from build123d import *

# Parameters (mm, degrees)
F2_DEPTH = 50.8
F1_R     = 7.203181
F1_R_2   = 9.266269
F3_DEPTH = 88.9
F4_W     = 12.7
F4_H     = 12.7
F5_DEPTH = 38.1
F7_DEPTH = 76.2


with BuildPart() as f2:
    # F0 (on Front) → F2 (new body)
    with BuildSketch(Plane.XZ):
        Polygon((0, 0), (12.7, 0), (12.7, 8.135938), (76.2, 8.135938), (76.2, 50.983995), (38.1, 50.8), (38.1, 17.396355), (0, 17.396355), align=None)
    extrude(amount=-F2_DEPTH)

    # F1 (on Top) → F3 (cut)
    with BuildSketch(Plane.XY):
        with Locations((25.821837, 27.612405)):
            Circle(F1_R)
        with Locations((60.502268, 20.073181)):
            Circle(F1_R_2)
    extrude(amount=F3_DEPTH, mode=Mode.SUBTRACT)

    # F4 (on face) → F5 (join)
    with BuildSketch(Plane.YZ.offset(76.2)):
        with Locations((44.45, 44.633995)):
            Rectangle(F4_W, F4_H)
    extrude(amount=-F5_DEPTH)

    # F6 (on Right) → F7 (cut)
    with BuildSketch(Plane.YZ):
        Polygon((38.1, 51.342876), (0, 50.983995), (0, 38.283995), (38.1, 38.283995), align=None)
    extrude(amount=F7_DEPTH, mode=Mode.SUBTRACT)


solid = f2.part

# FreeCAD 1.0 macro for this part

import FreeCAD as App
import Part
import Sketcher

V = App.Vector
Q = App.Units.Quantity

doc = App.newDocument("Part")
body = doc.addObject("PartDesign::Body", "Body")

# Sketch on XZ plane
sketch1 = body.newObject("Sketcher::SketchObject", "Sketch")
sketch1.AttachmentSupport = (doc.getObject("XZ_Plane"), [""])
sketch1.MapMode = "FlatFace"
sketch1.addGeometry([
    Part.LineSegment(V(0, 0, 0), V(13, 0, 0)),  # 0
    Part.LineSegment(V(13, 0, 0), V(13, 8, 0)),  # 1
    Part.LineSegment(V(13, 8, 0), V(76, 8, 0)),  # 2
    Part.LineSegment(V(76, 8, 0), V(76, 51, 0)),  # 3
    Part.LineSegment(V(76, 51, 0), V(38, 51, 0)),  # 4
    Part.LineSegment(V(38, 51, 0), V(38, 17, 0)),  # 5
    Part.LineSegment(V(38, 17, 0), V(0, 17, 0)),  # 6
    Part.LineSegment(V(0, 17, 0), V(0, 0, 0)),  # 7
], False)
sketch1.addConstraint([
    Sketcher.Constraint("Coincident", 0, 2, 1, 1),
    Sketcher.Constraint("Coincident", 1, 2, 2, 1),
    Sketcher.Constraint("Coincident", 2, 2, 3, 1),
    Sketcher.Constraint("Coincident", 3, 2, 4, 1),
    Sketcher.Constraint("Coincident", 4, 2, 5, 1),
    Sketcher.Constraint("Coincident", 5, 2, 6, 1),
    Sketcher.Constraint("Coincident", 6, 2, 7, 1),
    Sketcher.Constraint("Coincident", 7, 2, 0, 1),
    Sketcher.Constraint("Horizontal", 0),
    Sketcher.Constraint("Vertical", 1),
    Sketcher.Constraint("Horizontal", 2),
    Sketcher.Constraint("Vertical", 3),
    Sketcher.Constraint("Vertical", 5),
    Sketcher.Constraint("Horizontal", 6),
    Sketcher.Constraint("Vertical", 7),
    Sketcher.Constraint("Coincident", 7, 2, -1, 1),
    Sketcher.Constraint("DistanceX", 0, 1, 0, 2, Q("0.5 in")),
    Sketcher.Constraint("DistanceX", 2, 1, 2, 2, Q("2.5 in")),
    Sketcher.Constraint("DistanceX", 6, 2, 6, 1, Q("1.5 in")),
    Sketcher.Constraint("DistanceY", -1, 1, 4, 2, Q("2 in")),
    Sketcher.Constraint("DistanceY", 1, 1, 1, 2, 8.135938),
    Sketcher.Constraint("DistanceY", 3, 1, 3, 2, 42.848057),
    Sketcher.Constraint("DistanceY", 5, 2, 5, 1, 33.403645),
])
pad1 = body.newObject("PartDesign::Pad", "Pad")
pad1.Profile = sketch1
pad1.Length = Q("2 in")
pad1.Reversed = True

# Sketch on XY plane
sketch2 = body.newObject("Sketcher::SketchObject", "Sketch001")
sketch2.AttachmentSupport = (doc.getObject("XY_Plane"), [""])
sketch2.MapMode = "FlatFace"
sketch2.addGeometry([
    Part.Circle(V(26, 28, 0), V(0, 0, 1), 7),
    Part.Circle(V(61, 20, 0), V(0, 0, 1), 9),
], False)
sketch2.addConstraint([
    Sketcher.Constraint("Diameter", 0, 14.406362),
    Sketcher.Constraint("Diameter", 1, 18.532538),
    Sketcher.Constraint("DistanceY", -1, 1, 1, 3, 20.073181),
    Sketcher.Constraint("DistanceX", 0, 3, 1, 3, 34.680431),
    Sketcher.Constraint("DistanceX", -1, 1, 0, 3, 25.821837),
    Sketcher.Constraint("DistanceY", -1, 1, 0, 3, 27.612405),
])
pocket1 = body.newObject("PartDesign::Pocket", "Pocket")
pocket1.Profile = sketch2
pocket1.Length = Q("3.5 in")
pocket1.Reversed = True

# Sketch on YZ plane
sketch3 = body.newObject("Sketcher::SketchObject", "Sketch002")
sketch3.AttachmentSupport = (doc.getObject("YZ_Plane"), [""])
sketch3.MapMode = "FlatFace"
sketch3.AttachmentOffset = App.Placement(V(0, 0, 3 * 25.4), App.Rotation())
sketch3.addGeometry([
    Part.LineSegment(V(38, 51, 0), V(38, 38, 0)),
    Part.LineSegment(V(38, 38, 0), V(51, 38, 0)),
    Part.LineSegment(V(51, 38, 0), V(51, 51, 0)),
    Part.LineSegment(V(51, 51, 0), V(38, 51, 0)),
], False)
sketch3.addConstraint([
    Sketcher.Constraint("Coincident", 0, 2, 1, 1),
    Sketcher.Constraint("Coincident", 1, 2, 2, 1),
    Sketcher.Constraint("Coincident", 2, 2, 3, 1),
    Sketcher.Constraint("Coincident", 3, 2, 0, 1),
    Sketcher.Constraint("Vertical", 0),
    Sketcher.Constraint("Horizontal", 1),
    Sketcher.Constraint("Vertical", 2),
    Sketcher.Constraint("Horizontal", 3),
    Sketcher.Constraint("Equal", 3, 0),
    Sketcher.Constraint("DistanceX", 1, 1, 1, 2, Q("0.5 in")),
    Sketcher.Constraint("DistanceX", -1, 1, 1, 2, Q("2 in")),
    Sketcher.Constraint("DistanceY", -1, 1, 0, 2, 38.283995),
])
pad2 = body.newObject("PartDesign::Pad", "Pad001")
pad2.Profile = sketch3
pad2.Length = Q("1.5 in")
pad2.Reversed = True

# Sketch on YZ plane
sketch4 = body.newObject("Sketcher::SketchObject", "Sketch003")
sketch4.AttachmentSupport = (doc.getObject("YZ_Plane"), [""])
sketch4.MapMode = "FlatFace"
sketch4.addGeometry([
    Part.LineSegment(V(38, 51, 0), V(0, 51, 0)),
    Part.LineSegment(V(0, 51, 0), V(0, 38, 0)),
    Part.LineSegment(V(0, 38, 0), V(38, 38, 0)),
    Part.LineSegment(V(38, 38, 0), V(38, 51, 0)),
], False)
sketch4.addConstraint([
    Sketcher.Constraint("Coincident", 0, 2, 1, 1),
    Sketcher.Constraint("Coincident", 1, 2, 2, 1),
    Sketcher.Constraint("Coincident", 2, 2, 3, 1),
    Sketcher.Constraint("Coincident", 3, 2, 0, 1),
    Sketcher.Constraint("Vertical", 1),
    Sketcher.Constraint("Horizontal", 2),
    Sketcher.Constraint("Vertical", 3),
    Sketcher.Constraint("PointOnObject", 0, 2, -2),
    Sketcher.Constraint("DistanceX", 2, 1, 2, 2, Q("1.5 in")),
    Sketcher.Constraint("DistanceY", 1, 2, 1, 1, Q("0.5 in")),
    Sketcher.Constraint("DistanceY", 3, 1, 3, 2, 13.058881),
    Sketcher.Constraint("DistanceY", -1, 1, 0, 2, 50.983995),
])
pocket2 = body.newObject("PartDesign::Pocket", "Pocket001")
pocket2.Profile = sketch4
pocket2.Length = Q("3 in")
pocket2.Reversed = True

doc.recompute()
